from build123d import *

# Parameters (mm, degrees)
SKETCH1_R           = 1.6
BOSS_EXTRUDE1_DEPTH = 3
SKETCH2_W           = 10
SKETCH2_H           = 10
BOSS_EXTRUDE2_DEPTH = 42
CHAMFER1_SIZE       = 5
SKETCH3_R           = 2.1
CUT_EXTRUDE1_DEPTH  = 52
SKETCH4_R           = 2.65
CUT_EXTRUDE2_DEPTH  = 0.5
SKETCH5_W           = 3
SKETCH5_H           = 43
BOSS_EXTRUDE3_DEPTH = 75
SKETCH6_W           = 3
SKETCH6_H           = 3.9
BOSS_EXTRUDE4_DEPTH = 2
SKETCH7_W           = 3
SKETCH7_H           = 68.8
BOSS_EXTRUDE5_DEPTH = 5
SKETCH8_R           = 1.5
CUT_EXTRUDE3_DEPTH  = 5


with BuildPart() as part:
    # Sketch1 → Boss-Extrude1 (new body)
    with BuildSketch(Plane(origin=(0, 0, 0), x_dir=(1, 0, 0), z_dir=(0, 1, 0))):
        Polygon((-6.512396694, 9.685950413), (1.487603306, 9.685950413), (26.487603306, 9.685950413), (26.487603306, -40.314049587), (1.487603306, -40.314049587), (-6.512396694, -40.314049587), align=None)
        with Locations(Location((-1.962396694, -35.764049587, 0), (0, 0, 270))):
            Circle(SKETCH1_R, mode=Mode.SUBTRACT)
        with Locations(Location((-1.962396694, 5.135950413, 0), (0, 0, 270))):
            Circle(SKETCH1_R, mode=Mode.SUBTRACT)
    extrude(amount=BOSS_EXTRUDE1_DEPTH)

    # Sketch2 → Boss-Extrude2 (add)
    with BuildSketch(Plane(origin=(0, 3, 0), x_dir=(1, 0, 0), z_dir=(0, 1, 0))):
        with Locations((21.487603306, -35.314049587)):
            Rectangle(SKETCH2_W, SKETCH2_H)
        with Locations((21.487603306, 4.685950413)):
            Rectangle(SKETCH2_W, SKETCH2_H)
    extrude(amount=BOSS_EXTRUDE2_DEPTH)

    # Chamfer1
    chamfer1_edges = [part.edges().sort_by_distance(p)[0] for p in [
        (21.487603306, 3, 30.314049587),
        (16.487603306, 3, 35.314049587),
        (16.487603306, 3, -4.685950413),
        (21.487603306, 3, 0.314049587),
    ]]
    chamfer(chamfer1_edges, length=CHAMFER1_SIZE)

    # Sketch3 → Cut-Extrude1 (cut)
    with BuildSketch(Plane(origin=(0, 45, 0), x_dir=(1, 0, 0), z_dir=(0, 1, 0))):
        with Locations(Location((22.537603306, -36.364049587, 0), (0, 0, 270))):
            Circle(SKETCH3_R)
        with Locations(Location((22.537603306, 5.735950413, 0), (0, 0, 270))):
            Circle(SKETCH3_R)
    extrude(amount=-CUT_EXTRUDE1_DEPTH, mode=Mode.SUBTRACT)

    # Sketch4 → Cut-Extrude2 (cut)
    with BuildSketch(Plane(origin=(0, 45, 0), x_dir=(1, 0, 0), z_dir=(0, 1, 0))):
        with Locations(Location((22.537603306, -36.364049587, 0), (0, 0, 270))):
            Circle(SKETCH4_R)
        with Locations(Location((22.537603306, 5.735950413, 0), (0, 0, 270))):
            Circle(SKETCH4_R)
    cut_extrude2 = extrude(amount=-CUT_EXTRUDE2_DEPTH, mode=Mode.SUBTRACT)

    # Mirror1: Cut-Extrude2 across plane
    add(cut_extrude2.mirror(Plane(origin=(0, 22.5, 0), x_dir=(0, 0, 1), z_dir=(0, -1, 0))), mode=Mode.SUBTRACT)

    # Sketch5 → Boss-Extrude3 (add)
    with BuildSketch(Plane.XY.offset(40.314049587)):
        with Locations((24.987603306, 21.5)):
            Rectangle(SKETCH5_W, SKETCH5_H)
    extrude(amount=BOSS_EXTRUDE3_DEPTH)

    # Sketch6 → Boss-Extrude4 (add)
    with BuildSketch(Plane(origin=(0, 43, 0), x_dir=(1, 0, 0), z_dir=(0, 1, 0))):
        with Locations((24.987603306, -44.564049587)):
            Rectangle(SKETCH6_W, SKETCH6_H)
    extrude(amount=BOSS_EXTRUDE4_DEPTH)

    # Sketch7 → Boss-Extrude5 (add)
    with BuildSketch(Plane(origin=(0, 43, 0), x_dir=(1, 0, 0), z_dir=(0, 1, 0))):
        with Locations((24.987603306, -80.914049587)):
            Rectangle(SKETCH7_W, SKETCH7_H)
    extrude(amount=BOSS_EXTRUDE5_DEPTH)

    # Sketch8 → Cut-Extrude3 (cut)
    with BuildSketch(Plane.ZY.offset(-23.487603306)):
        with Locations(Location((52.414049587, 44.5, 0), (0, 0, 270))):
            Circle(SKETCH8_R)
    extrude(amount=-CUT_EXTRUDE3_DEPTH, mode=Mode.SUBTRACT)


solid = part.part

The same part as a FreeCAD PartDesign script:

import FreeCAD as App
import Part
import Sketcher
from FreeCAD import Vector
Q = App.Units.Quantity


def edges_at(feature, points):
    """Names of the edges that pass closest to the given points."""
    edges = feature.Shape.Edges
    near = lambda p: min(range(len(edges)), key=lambda i: edges[i].distToShape(Part.Vertex(*p))[0])
    return sorted({f"Edge{near(p) + 1}" for p in points})


def add_polygon(sketch, points):
    """Adds a closed chain of lines whose ends are joined by coincident constraints."""
    first, n = sketch.GeometryCount, len(points)
    for a, b in zip(points, points[1:] + points[:1]):
        sketch.addGeometry(Part.LineSegment(App.Vector(*a, 0), App.Vector(*b, 0)), False)
    for i in range(n):
        sketch.addConstraint(Sketcher.Constraint("Coincident", first + i, 2, first + (i + 1) % n, 1))

doc = App.newDocument("Part")
params = doc.addObject("Spreadsheet::Sheet", "Params")
for row, (alias, value) in enumerate([
    ("sketch1_diameter", "3.2 mm"),
    ("sketch1_width", "33 mm"),
    ("sketch1_height", "50 mm"),
    ("pad1_length", "3 mm"),
    ("sketch2_width", "10 mm"),
    ("pad2_length", "42 mm"),
    ("chamfer_size", "5 mm"),
    ("sketch3_diameter", "4.2 mm"),
    ("pocket1_length", "52 mm"),
    ("sketch4_diameter", "5.3 mm"),
    ("pocket2_length", "0.5 mm"),
    ("sketch5_width", "3 mm"),
    ("sketch5_height", "43 mm"),
    ("pad3_length", "75 mm"),
    ("sketch6_width", "3 mm"),
    ("sketch6_height", "3.9 mm"),
    ("pad4_length", "2 mm"),
    ("sketch7_width", "3 mm"),
    ("sketch7_height", "68.8 mm"),
    ("pad5_length", "5 mm"),
    ("sketch8_diameter", "3 mm"),
    ("pocket3_length", "5 mm"),
], start=1):
    params.set(f"A{row}", alias)
    params.set(f"B{row}", "=" + value)
    params.setAlias(f"B{row}", alias)

body = doc.addObject("PartDesign::Body", "Body")

sketch1 = body.newObject("Sketcher::SketchObject", "Sketch")
sketch1.AttachmentSupport = (doc.getObject("XZ_Plane"), [""])
sketch1.MapMode = "FlatFace"
add_polygon(sketch1, [(26.5, -9.7), (-6.5, -9.7), (-6.5, 40.3), (26.5, 40.3)])
sketch1.addGeometry(Part.Circle(Vector(-2, 35.8, 0), Vector(0, 0, 1), 1.6), False)
sketch1.addGeometry(Part.Circle(Vector(-2, -5.1, 0), Vector(0, 0, 1), 1.6), False)
sketch1.addConstraint(Sketcher.Constraint("Horizontal", 0))
sketch1.addConstraint(Sketcher.Constraint("Vertical", 1))
sketch1.addConstraint(Sketcher.Constraint("Horizontal", 2))
sketch1.addConstraint(Sketcher.Constraint("Vertical", 3))
sketch1.addConstraint(Sketcher.Constraint("Equal", 4, 5))
sketch1.addConstraint(Sketcher.Constraint("Vertical", 4, 3, 5, 3))
sketch1.addConstraint(Sketcher.Constraint("Diameter", 4, Q("3.2 mm")))
sketch1.addConstraint(Sketcher.Constraint("DistanceX", 0, 2, 0, 1, Q("33 mm")))
sketch1.addConstraint(Sketcher.Constraint("DistanceY", 1, 1, 1, 2, Q("50 mm")))
sketch1.addConstraint(Sketcher.Constraint("DistanceY", 5, 3, 4, 3, Q("40.9 mm")))
sketch1.addConstraint(Sketcher.Constraint("DistanceX", 0, 2, 5, 3, Q("4.55 mm")))
sketch1.addConstraint(Sketcher.Constraint("DistanceY", 0, 2, 5, 3, Q("4.55 mm")))
sketch1.addConstraint(Sketcher.Constraint("DistanceY", -1, 1, 4, 3, Q("35.76405 mm")))
sketch1.addConstraint(Sketcher.Constraint("DistanceX", 4, 3, -1, 1, Q("1.962397 mm")))
sketch1.setExpression("Constraints[10]", "Params.sketch1_diameter")
sketch1.setExpression("Constraints[11]", "Params.sketch1_width")
sketch1.setExpression("Constraints[12]", "Params.sketch1_height")
pad1 = body.newObject("PartDesign::Pad", "Pad")
pad1.Profile = sketch1
pad1.setExpression("Length", "Params.pad1_length")
pad1.Reversed = True

sketch2 = body.newObject("Sketcher::SketchObject", "Sketch001")
sketch2.AttachmentSupport = (doc.getObject("XZ_Plane"), [""])
sketch2.MapMode = "FlatFace"
sketch2.AttachmentOffset = App.Placement(Vector(0, 0, -3), App.Rotation())
add_polygon(sketch2, [(16, 30), (16, 40), (26, 40), (26, 30)])
add_polygon(sketch2, [(16, -10), (16, 0), (26, 0), (26, -10)])
sketch2.addConstraint(Sketcher.Constraint("Vertical", 0))
sketch2.addConstraint(Sketcher.Constraint("Horizontal", 1))
sketch2.addConstraint(Sketcher.Constraint("Vertical", 2))
sketch2.addConstraint(Sketcher.Constraint("Horizontal", 3))
sketch2.addConstraint(Sketcher.Constraint("Vertical", 4))
sketch2.addConstraint(Sketcher.Constraint("Horizontal", 5))
sketch2.addConstraint(Sketcher.Constraint("Vertical", 6))
sketch2.addConstraint(Sketcher.Constraint("Horizontal", 7))
sketch2.addConstraint(Sketcher.Constraint("Vertical", 3, 2, 4, 2))
sketch2.addConstraint(Sketcher.Constraint("Vertical", 2, 2, 5, 2))
sketch2.addConstraint(Sketcher.Constraint("Equal", 7, 0))
sketch2.addConstraint(Sketcher.Constraint("Equal", 2, 4))
sketch2.addConstraint(Sketcher.Constraint("DistanceX", 1, 1, 1, 2, Q("10 mm")))
sketch2.addConstraint(Sketcher.Constraint("DistanceY", 4, 2, 3, 2, Q("30 mm")))
sketch2.addConstraint(Sketcher.Constraint("DistanceY", -1, 1, 0, 2, Q("40.31405 mm")))
sketch2.addConstraint(Sketcher.Constraint("DistanceX", -1, 1, 0, 2, Q("16.487603 mm")))
sketch2.setExpression("Constraints[20]", "Params.sketch2_width")
pad2 = body.newObject("PartDesign::Pad", "Pad001")
pad2.Profile = sketch2
pad2.setExpression("Length", "Params.pad2_length")
pad2.Reversed = True
doc.recompute()

chamfer = body.newObject("PartDesign::Chamfer", "Chamfer")
chamfer.Base = (pad2, edges_at(pad2, [
    (21.488, 3, 30.314),
    (16.488, 3, 35.314),
    (16.488, 3, -4.686),
    (21.488, 3, 0.314),
]))
chamfer.setExpression("Size", "Params.chamfer_size")

sketch3 = body.newObject("Sketcher::SketchObject", "Sketch002")
sketch3.AttachmentSupport = (doc.getObject("XZ_Plane"), [""])
sketch3.MapMode = "FlatFace"
sketch3.AttachmentOffset = App.Placement(Vector(0, 0, -45), App.Rotation())
sketch3.addGeometry(Part.Circle(Vector(22.5, 36.4, 0), Vector(0, 0, 1), 2.1), False)
sketch3.addGeometry(Part.Circle(Vector(22.5, -5.7, 0), Vector(0, 0, 1), 2.1), False)
sketch3.addConstraint(Sketcher.Constraint("Equal", 0, 1))
sketch3.addConstraint(Sketcher.Constraint("Vertical", 0, 3, 1, 3))
sketch3.addConstraint(Sketcher.Constraint("Diameter", 0, Q("4.2 mm")))
sketch3.addConstraint(Sketcher.Constraint("DistanceY", 1, 3, 0, 3, Q("42.1 mm")))
sketch3.addConstraint(Sketcher.Constraint("DistanceY", -1, 1, 0, 3, Q("36.36405 mm")))
sketch3.addConstraint(Sketcher.Constraint("DistanceX", -1, 1, 0, 3, Q("22.537603 mm")))
sketch3.setExpression("Constraints[2]", "Params.sketch3_diameter")
pocket1 = body.newObject("PartDesign::Pocket", "Pocket")
pocket1.Profile = sketch3
pocket1.setExpression("Length", "Params.pocket1_length")
pocket1.Reversed = True

sketch4 = body.newObject("Sketcher::SketchObject", "Sketch003")
sketch4.AttachmentSupport = (doc.getObject("XZ_Plane"), [""])
sketch4.MapMode = "FlatFace"
sketch4.AttachmentOffset = App.Placement(Vector(0, 0, -45), App.Rotation())
sketch4.addGeometry(Part.Circle(Vector(22.5, 36.4, 0), Vector(0, 0, 1), 2.6), False)
sketch4.addGeometry(Part.Circle(Vector(22.5, -5.7, 0), Vector(0, 0, 1), 2.6), False)
sketch4.addConstraint(Sketcher.Constraint("Equal", 0, 1))
sketch4.addConstraint(Sketcher.Constraint("Vertical", 0, 3, 1, 3))
sketch4.addConstraint(Sketcher.Constraint("Diameter", 0, Q("5.3 mm")))
sketch4.addConstraint(Sketcher.Constraint("DistanceY", 1, 3, 0, 3, Q("42.1 mm")))
sketch4.addConstraint(Sketcher.Constraint("DistanceY", -1, 1, 0, 3, Q("36.36405 mm")))
sketch4.addConstraint(Sketcher.Constraint("DistanceX", -1, 1, 0, 3, Q("22.537603 mm")))
sketch4.setExpression("Constraints[2]", "Params.sketch4_diameter")
pocket2 = body.newObject("PartDesign::Pocket", "Pocket001")
pocket2.Profile = sketch4
pocket2.setExpression("Length", "Params.pocket2_length")
pocket2.Reversed = True
doc.recompute()

datumplane = body.newObject("PartDesign::Plane", "DatumPlane")
datumplane.AttachmentSupport = (doc.getObject("XZ_Plane"), [""])
datumplane.MapMode = "FlatFace"
datumplane.AttachmentOffset = App.Placement(Vector(0, 0, -22.5), App.Rotation())
mirrored = body.newObject("PartDesign::Mirrored", "Mirrored")
mirrored.Originals = [pocket2]
mirrored.MirrorPlane = (datumplane, [""])
body.Tip = mirrored

sketch5 = body.newObject("Sketcher::SketchObject", "Sketch004")
sketch5.AttachmentSupport = (doc.getObject("XY_Plane"), [""])
sketch5.MapMode = "FlatFace"
sketch5.AttachmentOffset = App.Placement(Vector(0, 0, 40.31405), App.Rotation())
add_polygon(sketch5, [(23.5, 43), (23.5, 0), (26.5, 0), (26.5, 43)])
sketch5.addConstraint(Sketcher.Constraint("Vertical", 0))
sketch5.addConstraint(Sketcher.Constraint("Horizontal", 1))
sketch5.addConstraint(Sketcher.Constraint("Vertical", 2))
sketch5.addConstraint(Sketcher.Constraint("Horizontal", 3))
sketch5.addConstraint(Sketcher.Constraint("PointOnObject", 0, 2, -1))
sketch5.addConstraint(Sketcher.Constraint("DistanceX", 1, 1, 1, 2, Q("3 mm")))
sketch5.addConstraint(Sketcher.Constraint("DistanceY", 0, 2, 0, 1, Q("43 mm")))
sketch5.addConstraint(Sketcher.Constraint("DistanceX", -1, 1, 0, 2, Q("23.487603 mm")))
sketch5.setExpression("Constraints[9]", "Params.sketch5_width")
sketch5.setExpression("Constraints[10]", "Params.sketch5_height")
pad3 = body.newObject("PartDesign::Pad", "Pad002")
pad3.Profile = sketch5
pad3.setExpression("Length", "Params.pad3_length")

sketch6 = body.newObject("Sketcher::SketchObject", "Sketch005")
sketch6.AttachmentSupport = (doc.getObject("XZ_Plane"), [""])
sketch6.MapMode = "FlatFace"
sketch6.AttachmentOffset = App.Placement(Vector(0, 0, -43), App.Rotation())
add_polygon(sketch6, [(23.5, 42.6), (23.5, 46.5), (26.5, 46.5), (26.5, 42.6)])
sketch6.addConstraint(Sketcher.Constraint("Vertical", 0))
sketch6.addConstraint(Sketcher.Constraint("Horizontal", 1))
sketch6.addConstraint(Sketcher.Constraint("Vertical", 2))
sketch6.addConstraint(Sketcher.Constraint("Horizontal", 3))
sketch6.addConstraint(Sketcher.Constraint("DistanceX", 1, 1, 1, 2, Q("3 mm")))
sketch6.addConstraint(Sketcher.Constraint("DistanceY", 0, 1, 0, 2, Q("3.9 mm")))
sketch6.addConstraint(Sketcher.Constraint("DistanceY", -1, 1, 0, 2, Q("46.51405 mm")))
sketch6.addConstraint(Sketcher.Constraint("DistanceX", -1, 1, 0, 2, Q("23.487603 mm")))
sketch6.setExpression("Constraints[8]", "Params.sketch6_width")
sketch6.setExpression("Constraints[9]", "Params.sketch6_height")
pad4 = body.newObject("PartDesign::Pad", "Pad003")
pad4.Profile = sketch6
pad4.setExpression("Length", "Params.pad4_length")
pad4.Reversed = True

sketch7 = body.newObject("Sketcher::SketchObject", "Sketch006")
sketch7.AttachmentSupport = (doc.getObject("XZ_Plane"), [""])
sketch7.MapMode = "FlatFace"
sketch7.AttachmentOffset = App.Placement(Vector(0, 0, -43), App.Rotation())
add_polygon(sketch7, [(23.5, 46.5), (23.5, 115.3), (26.5, 115.3), (26.5, 46.5)])
sketch7.addConstraint(Sketcher.Constraint("Vertical", 0))
sketch7.addConstraint(Sketcher.Constraint("Horizontal", 1))
sketch7.addConstraint(Sketcher.Constraint("Vertical", 2))
sketch7.addConstraint(Sketcher.Constraint("Horizontal", 3))
sketch7.addConstraint(Sketcher.Constraint("DistanceX", 1, 1, 1, 2, Q("3 mm")))
sketch7.addConstraint(Sketcher.Constraint("DistanceY", 0, 1, 0, 2, Q("68.8 mm")))
sketch7.addConstraint(Sketcher.Constraint("DistanceY", -1, 1, 0, 2, Q("115.31405 mm")))
sketch7.addConstraint(Sketcher.Constraint("DistanceX", -1, 1, 0, 2, Q("23.487603 mm")))
sketch7.setExpression("Constraints[8]", "Params.sketch7_width")
sketch7.setExpression("Constraints[9]", "Params.sketch7_height")
pad5 = body.newObject("PartDesign::Pad", "Pad004")
pad5.Profile = sketch7
pad5.setExpression("Length", "Params.pad5_length")
pad5.Reversed = True

sketch8 = body.newObject("Sketcher::SketchObject", "Sketch007")
sketch8.AttachmentSupport = (doc.getObject("YZ_Plane"), [""])
sketch8.MapMode = "FlatFace"
sketch8.AttachmentOffset = App.Placement(Vector(0, 0, 23.487603), App.Rotation())
sketch8.addGeometry(Part.Circle(Vector(44.5, 52.4, 0), Vector(0, 0, 1), 1.5), False)
sketch8.addConstraint(Sketcher.Constraint("Diameter", 0, Q("3 mm")))
sketch8.addConstraint(Sketcher.Constraint("DistanceX", -1, 1, 0, 3, Q("44.5 mm")))
sketch8.addConstraint(Sketcher.Constraint("DistanceY", -1, 1, 0, 3, Q("52.41405 mm")))
sketch8.setExpression("Constraints[0]", "Params.sketch8_diameter")
pocket3 = body.newObject("PartDesign::Pocket", "Pocket002")
pocket3.Profile = sketch8
pocket3.setExpression("Length", "Params.pocket3_length")
pocket3.Reversed = True

doc.recompute()
